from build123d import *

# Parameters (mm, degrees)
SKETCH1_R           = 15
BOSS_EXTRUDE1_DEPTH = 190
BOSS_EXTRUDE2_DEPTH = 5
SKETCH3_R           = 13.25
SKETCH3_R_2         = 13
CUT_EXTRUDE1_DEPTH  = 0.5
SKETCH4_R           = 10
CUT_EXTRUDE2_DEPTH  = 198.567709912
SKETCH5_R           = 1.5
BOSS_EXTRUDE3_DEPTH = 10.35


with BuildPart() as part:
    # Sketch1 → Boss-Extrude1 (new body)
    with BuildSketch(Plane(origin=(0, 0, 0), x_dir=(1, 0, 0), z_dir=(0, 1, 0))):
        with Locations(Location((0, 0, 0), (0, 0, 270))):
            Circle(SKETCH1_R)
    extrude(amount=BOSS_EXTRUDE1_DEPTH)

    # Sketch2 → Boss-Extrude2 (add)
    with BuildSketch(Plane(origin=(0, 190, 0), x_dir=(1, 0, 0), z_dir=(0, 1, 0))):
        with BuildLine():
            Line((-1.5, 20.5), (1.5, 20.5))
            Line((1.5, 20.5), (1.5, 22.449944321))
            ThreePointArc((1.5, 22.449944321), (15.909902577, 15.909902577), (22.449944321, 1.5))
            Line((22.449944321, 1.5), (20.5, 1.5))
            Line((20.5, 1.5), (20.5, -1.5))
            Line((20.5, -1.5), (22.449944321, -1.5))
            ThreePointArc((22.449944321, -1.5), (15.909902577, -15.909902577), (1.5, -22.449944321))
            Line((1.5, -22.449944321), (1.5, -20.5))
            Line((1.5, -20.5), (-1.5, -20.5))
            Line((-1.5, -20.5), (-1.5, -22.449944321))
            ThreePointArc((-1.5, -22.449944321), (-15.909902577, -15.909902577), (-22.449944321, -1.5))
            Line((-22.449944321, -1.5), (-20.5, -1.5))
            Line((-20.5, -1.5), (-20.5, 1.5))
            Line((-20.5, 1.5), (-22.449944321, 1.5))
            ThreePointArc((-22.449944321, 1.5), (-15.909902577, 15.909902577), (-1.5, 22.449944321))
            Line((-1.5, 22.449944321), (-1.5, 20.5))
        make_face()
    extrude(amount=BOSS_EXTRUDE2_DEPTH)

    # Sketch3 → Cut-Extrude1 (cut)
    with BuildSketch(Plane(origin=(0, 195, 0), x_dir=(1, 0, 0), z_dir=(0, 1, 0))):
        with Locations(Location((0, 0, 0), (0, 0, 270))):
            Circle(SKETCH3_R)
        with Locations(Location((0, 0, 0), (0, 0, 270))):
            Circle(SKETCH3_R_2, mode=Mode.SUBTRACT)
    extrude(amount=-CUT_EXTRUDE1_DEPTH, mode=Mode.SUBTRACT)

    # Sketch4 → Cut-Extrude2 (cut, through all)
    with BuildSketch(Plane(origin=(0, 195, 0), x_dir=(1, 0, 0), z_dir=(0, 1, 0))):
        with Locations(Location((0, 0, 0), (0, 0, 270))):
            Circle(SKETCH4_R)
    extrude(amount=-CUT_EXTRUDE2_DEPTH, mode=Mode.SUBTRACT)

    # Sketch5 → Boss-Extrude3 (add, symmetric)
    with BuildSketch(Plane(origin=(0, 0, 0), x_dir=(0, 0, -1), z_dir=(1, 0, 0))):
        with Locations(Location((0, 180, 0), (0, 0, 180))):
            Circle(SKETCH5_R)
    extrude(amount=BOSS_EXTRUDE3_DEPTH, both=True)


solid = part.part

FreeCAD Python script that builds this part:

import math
import FreeCAD as App
import Part
import Sketcher
from FreeCAD import Vector
Q = App.Units.Quantity

doc = App.newDocument("Part")
params = doc.addObject("Spreadsheet::Sheet", "Params")
for row, (alias, value) in enumerate([
    ("sketch1_diameter", "30 mm"),
    ("pad1_length", "190 mm"),
    ("sketch2_radius", "22.5 mm"),
    ("sketch2_width", "3 mm"),
    ("pad2_length", "5 mm"),
    ("sketch3_diameter", "26 mm"),
    ("sketch3_diameter2", "26.5 mm"),
    ("pocket1_length", "0.5 mm"),
    ("sketch4_diameter", "20 mm"),
    ("sketch5_diameter", "3 mm"),
    ("pad3_length", "20.7 mm"),
], start=1):
    params.set(f"A{row}", alias)
    params.set(f"B{row}", "=" + value)
    params.setAlias(f"B{row}", alias)

body = doc.addObject("PartDesign::Body", "Body")

# Sketch on XZ plane
sketch1 = body.newObject("Sketcher::SketchObject", "Sketch")
sketch1.AttachmentSupport = (doc.getObject("XZ_Plane"), [""])
sketch1.MapMode = "FlatFace"
sketch1.addGeometry(Part.Circle(Vector(0, 0, 0), Vector(0, 0, 1), 15), False)
sketch1.addConstraint([
    Sketcher.Constraint("Coincident", 0, 3, -1, 1),
    Sketcher.Constraint("Diameter", 0, Q("30 mm")),
])
sketch1.setExpression("Constraints[1]", "Params.sketch1_diameter")
pad1 = body.newObject("PartDesign::Pad", "Pad")
pad1.Profile = sketch1
pad1.setExpression("Length", "Params.pad1_length")
pad1.Reversed = True

# Sketch on XZ plane
sketch2 = body.newObject("Sketcher::SketchObject", "Sketch001")
sketch2.AttachmentSupport = (doc.getObject("XZ_Plane"), [""])
sketch2.MapMode = "FlatFace"
sketch2.AttachmentOffset = App.Placement(Vector(0, 0, -190), App.Rotation())
sketch2.addGeometry([
    Part.LineSegment(Vector(1.5, -20.5, 0), Vector(-1.5, -20.5, 0)),  # 0
    Part.LineSegment(Vector(-1.5, -20.5, 0), Vector(-1.5, -22.4, 0)),  # 1
    Part.ArcOfCircle(Part.Circle(Vector(0, 0, 0), Vector(0, 0, 1), 22.5), math.radians(-176), math.radians(-94)),  # 2
    Part.LineSegment(Vector(-22.4, -1.5, 0), Vector(-20.5, -1.5, 0)),  # 3
    Part.LineSegment(Vector(-20.5, -1.5, 0), Vector(-20.5, 1.5, 0)),  # 4
    Part.LineSegment(Vector(-20.5, 1.5, 0), Vector(-22.4, 1.5, 0)),  # 5
    Part.ArcOfCircle(Part.Circle(Vector(0, 0, 0), Vector(0, 0, 1), 22.5), math.radians(94), math.radians(176)),  # 6
    Part.LineSegment(Vector(-1.5, 22.4, 0), Vector(-1.5, 20.5, 0)),  # 7
    Part.LineSegment(Vector(-1.5, 20.5, 0), Vector(1.5, 20.5, 0)),  # 8
    Part.LineSegment(Vector(1.5, 20.5, 0), Vector(1.5, 22.4, 0)),  # 9
    Part.ArcOfCircle(Part.Circle(Vector(0, 0, 0), Vector(0, 0, 1), 22.5), math.radians(4), math.radians(86)),  # 10
    Part.LineSegment(Vector(22.4, 1.5, 0), Vector(20.5, 1.5, 0)),  # 11
    Part.LineSegment(Vector(20.5, 1.5, 0), Vector(20.5, -1.5, 0)),  # 12
    Part.LineSegment(Vector(20.5, -1.5, 0), Vector(22.4, -1.5, 0)),  # 13
    Part.ArcOfCircle(Part.Circle(Vector(0, 0, 0), Vector(0, 0, 1), 22.5), math.radians(-86), math.radians(-4)),  # 14
    Part.LineSegment(Vector(1.5, -22.4, 0), Vector(1.5, -20.5, 0)),  # 15
], False)
sketch2.addConstraint([
    Sketcher.Constraint("Coincident", 0, 2, 1, 1),
    Sketcher.Constraint("Coincident", 1, 2, 2, 2),
    Sketcher.Constraint("Coincident", 2, 1, 3, 1),
    Sketcher.Constraint("Coincident", 3, 2, 4, 1),
    Sketcher.Constraint("Coincident", 4, 2, 5, 1),
    Sketcher.Constraint("Coincident", 5, 2, 6, 2),
    Sketcher.Constraint("Coincident", 6, 1, 7, 1),
    Sketcher.Constraint("Coincident", 7, 2, 8, 1),
    Sketcher.Constraint("Coincident", 8, 2, 9, 1),
    Sketcher.Constraint("Coincident", 9, 2, 10, 2),
    Sketcher.Constraint("Coincident", 10, 1, 11, 1),
    Sketcher.Constraint("Coincident", 11, 2, 12, 1),
    Sketcher.Constraint("Coincident", 12, 2, 13, 1),
    Sketcher.Constraint("Coincident", 13, 2, 14, 2),
    Sketcher.Constraint("Coincident", 14, 1, 15, 1),
    Sketcher.Constraint("Coincident", 15, 2, 0, 1),
    Sketcher.Constraint("Horizontal", 0),
    Sketcher.Constraint("Vertical", 1),
    Sketcher.Constraint("Horizontal", 3),
    Sketcher.Constraint("Vertical", 4),
    Sketcher.Constraint("Horizontal", 5),
    Sketcher.Constraint("Vertical", 7),
    Sketcher.Constraint("Horizontal", 8),
    Sketcher.Constraint("Vertical", 9),
    Sketcher.Constraint("Horizontal", 11),
    Sketcher.Constraint("Vertical", 12),
    Sketcher.Constraint("Horizontal", 13),
    Sketcher.Constraint("Vertical", 15),
    Sketcher.Constraint("Coincident", 2, 3, -1, 1),
    Sketcher.Constraint("Coincident", 6, 3, -1, 1),
    Sketcher.Constraint("Coincident", 10, 3, -1, 1),
    Sketcher.Constraint("Coincident", 14, 3, -1, 1),
    Sketcher.Constraint("Equal", 2, 6),
    Sketcher.Constraint("Equal", 6, 10),
    Sketcher.Constraint("Equal", 10, 14),
    Sketcher.Constraint("Symmetric", 0, 2, 8, 2, -1, 1),
    Sketcher.Constraint("Symmetric", 3, 2, 11, 2, -1, 1),
    Sketcher.Constraint("Horizontal", 6, 1, 9, 2),
    Sketcher.Constraint("Horizontal", 5, 2, 10, 1),
    Sketcher.Constraint("Horizontal", 3, 2, 12, 2),
    Sketcher.Constraint("Horizontal", 1, 2, 14, 1),
    Sketcher.Constraint("Equal", 13, 1),
    Sketcher.Constraint("Equal", 8, 4),
    Sketcher.Constraint("Radius", 2, Q("22.5 mm")),
    Sketcher.Constraint("DistanceX", 0, 2, 0, 1, Q("3 mm")),
    Sketcher.Constraint("DistanceY", 0, 2, 2, 1, Q("19 mm")),
])
sketch2.setExpression("Constraints[43]", "Params.sketch2_radius")
sketch2.setExpression("Constraints[44]", "Params.sketch2_width")
pad2 = body.newObject("PartDesign::Pad", "Pad001")
pad2.Profile = sketch2
pad2.setExpression("Length", "Params.pad2_length")
pad2.Reversed = True

# Sketch on XZ plane
sketch3 = body.newObject("Sketcher::SketchObject", "Sketch002")
sketch3.AttachmentSupport = (doc.getObject("XZ_Plane"), [""])
sketch3.MapMode = "FlatFace"
sketch3.AttachmentOffset = App.Placement(Vector(0, 0, -195), App.Rotation())
sketch3.addGeometry([
    Part.Circle(Vector(0, 0, 0), Vector(0, 0, 1), 13),
    Part.Circle(Vector(0, 0, 0), Vector(0, 0, 1), 13),
], False)
sketch3.addConstraint([
    Sketcher.Constraint("Coincident", 0, 3, -1, 1),
    Sketcher.Constraint("Coincident", 1, 3, -1, 1),
    Sketcher.Constraint("Diameter", 1, Q("26 mm")),
    Sketcher.Constraint("Diameter", 0, Q("26.5 mm")),
])
sketch3.setExpression("Constraints[2]", "Params.sketch3_diameter")
sketch3.setExpression("Constraints[3]", "Params.sketch3_diameter2")
pocket1 = body.newObject("PartDesign::Pocket", "Pocket")
pocket1.Profile = sketch3
pocket1.setExpression("Length", "Params.pocket1_length")
pocket1.Reversed = True

# Sketch on XZ plane
sketch4 = body.newObject("Sketcher::SketchObject", "Sketch003")
sketch4.AttachmentSupport = (doc.getObject("XZ_Plane"), [""])
sketch4.MapMode = "FlatFace"
sketch4.AttachmentOffset = App.Placement(Vector(0, 0, -195), App.Rotation())
sketch4.addGeometry(Part.Circle(Vector(0, 0, 0), Vector(0, 0, 1), 10), False)
sketch4.addConstraint([
    Sketcher.Constraint("Coincident", 0, 3, -1, 1),
    Sketcher.Constraint("Diameter", 0, Q("20 mm")),
])
sketch4.setExpression("Constraints[1]", "Params.sketch4_diameter")
pocket2 = body.newObject("PartDesign::Pocket", "Pocket001")
pocket2.Profile = sketch4
pocket2.Type = "ThroughAll"
pocket2.Reversed = True

# Sketch on YZ plane
sketch5 = body.newObject("Sketcher::SketchObject", "Sketch004")
sketch5.AttachmentSupport = (doc.getObject("YZ_Plane"), [""])
sketch5.MapMode = "FlatFace"
sketch5.addGeometry(Part.Circle(Vector(180, 0, 0), Vector(0, 0, 1), 1.5), False)
sketch5.addConstraint([
    Sketcher.Constraint("PointOnObject", 0, 3, -1),
    Sketcher.Constraint("Diameter", 0, Q("3 mm")),
    Sketcher.Constraint("DistanceX", -1, 1, 0, 3, Q("180 mm")),
])
sketch5.setExpression("Constraints[1]", "Params.sketch5_diameter")
pad3 = body.newObject("PartDesign::Pad", "Pad002")
pad3.Profile = sketch5
pad3.setExpression("Length", "Params.pad3_length")
pad3.Midplane = True

doc.recompute()
